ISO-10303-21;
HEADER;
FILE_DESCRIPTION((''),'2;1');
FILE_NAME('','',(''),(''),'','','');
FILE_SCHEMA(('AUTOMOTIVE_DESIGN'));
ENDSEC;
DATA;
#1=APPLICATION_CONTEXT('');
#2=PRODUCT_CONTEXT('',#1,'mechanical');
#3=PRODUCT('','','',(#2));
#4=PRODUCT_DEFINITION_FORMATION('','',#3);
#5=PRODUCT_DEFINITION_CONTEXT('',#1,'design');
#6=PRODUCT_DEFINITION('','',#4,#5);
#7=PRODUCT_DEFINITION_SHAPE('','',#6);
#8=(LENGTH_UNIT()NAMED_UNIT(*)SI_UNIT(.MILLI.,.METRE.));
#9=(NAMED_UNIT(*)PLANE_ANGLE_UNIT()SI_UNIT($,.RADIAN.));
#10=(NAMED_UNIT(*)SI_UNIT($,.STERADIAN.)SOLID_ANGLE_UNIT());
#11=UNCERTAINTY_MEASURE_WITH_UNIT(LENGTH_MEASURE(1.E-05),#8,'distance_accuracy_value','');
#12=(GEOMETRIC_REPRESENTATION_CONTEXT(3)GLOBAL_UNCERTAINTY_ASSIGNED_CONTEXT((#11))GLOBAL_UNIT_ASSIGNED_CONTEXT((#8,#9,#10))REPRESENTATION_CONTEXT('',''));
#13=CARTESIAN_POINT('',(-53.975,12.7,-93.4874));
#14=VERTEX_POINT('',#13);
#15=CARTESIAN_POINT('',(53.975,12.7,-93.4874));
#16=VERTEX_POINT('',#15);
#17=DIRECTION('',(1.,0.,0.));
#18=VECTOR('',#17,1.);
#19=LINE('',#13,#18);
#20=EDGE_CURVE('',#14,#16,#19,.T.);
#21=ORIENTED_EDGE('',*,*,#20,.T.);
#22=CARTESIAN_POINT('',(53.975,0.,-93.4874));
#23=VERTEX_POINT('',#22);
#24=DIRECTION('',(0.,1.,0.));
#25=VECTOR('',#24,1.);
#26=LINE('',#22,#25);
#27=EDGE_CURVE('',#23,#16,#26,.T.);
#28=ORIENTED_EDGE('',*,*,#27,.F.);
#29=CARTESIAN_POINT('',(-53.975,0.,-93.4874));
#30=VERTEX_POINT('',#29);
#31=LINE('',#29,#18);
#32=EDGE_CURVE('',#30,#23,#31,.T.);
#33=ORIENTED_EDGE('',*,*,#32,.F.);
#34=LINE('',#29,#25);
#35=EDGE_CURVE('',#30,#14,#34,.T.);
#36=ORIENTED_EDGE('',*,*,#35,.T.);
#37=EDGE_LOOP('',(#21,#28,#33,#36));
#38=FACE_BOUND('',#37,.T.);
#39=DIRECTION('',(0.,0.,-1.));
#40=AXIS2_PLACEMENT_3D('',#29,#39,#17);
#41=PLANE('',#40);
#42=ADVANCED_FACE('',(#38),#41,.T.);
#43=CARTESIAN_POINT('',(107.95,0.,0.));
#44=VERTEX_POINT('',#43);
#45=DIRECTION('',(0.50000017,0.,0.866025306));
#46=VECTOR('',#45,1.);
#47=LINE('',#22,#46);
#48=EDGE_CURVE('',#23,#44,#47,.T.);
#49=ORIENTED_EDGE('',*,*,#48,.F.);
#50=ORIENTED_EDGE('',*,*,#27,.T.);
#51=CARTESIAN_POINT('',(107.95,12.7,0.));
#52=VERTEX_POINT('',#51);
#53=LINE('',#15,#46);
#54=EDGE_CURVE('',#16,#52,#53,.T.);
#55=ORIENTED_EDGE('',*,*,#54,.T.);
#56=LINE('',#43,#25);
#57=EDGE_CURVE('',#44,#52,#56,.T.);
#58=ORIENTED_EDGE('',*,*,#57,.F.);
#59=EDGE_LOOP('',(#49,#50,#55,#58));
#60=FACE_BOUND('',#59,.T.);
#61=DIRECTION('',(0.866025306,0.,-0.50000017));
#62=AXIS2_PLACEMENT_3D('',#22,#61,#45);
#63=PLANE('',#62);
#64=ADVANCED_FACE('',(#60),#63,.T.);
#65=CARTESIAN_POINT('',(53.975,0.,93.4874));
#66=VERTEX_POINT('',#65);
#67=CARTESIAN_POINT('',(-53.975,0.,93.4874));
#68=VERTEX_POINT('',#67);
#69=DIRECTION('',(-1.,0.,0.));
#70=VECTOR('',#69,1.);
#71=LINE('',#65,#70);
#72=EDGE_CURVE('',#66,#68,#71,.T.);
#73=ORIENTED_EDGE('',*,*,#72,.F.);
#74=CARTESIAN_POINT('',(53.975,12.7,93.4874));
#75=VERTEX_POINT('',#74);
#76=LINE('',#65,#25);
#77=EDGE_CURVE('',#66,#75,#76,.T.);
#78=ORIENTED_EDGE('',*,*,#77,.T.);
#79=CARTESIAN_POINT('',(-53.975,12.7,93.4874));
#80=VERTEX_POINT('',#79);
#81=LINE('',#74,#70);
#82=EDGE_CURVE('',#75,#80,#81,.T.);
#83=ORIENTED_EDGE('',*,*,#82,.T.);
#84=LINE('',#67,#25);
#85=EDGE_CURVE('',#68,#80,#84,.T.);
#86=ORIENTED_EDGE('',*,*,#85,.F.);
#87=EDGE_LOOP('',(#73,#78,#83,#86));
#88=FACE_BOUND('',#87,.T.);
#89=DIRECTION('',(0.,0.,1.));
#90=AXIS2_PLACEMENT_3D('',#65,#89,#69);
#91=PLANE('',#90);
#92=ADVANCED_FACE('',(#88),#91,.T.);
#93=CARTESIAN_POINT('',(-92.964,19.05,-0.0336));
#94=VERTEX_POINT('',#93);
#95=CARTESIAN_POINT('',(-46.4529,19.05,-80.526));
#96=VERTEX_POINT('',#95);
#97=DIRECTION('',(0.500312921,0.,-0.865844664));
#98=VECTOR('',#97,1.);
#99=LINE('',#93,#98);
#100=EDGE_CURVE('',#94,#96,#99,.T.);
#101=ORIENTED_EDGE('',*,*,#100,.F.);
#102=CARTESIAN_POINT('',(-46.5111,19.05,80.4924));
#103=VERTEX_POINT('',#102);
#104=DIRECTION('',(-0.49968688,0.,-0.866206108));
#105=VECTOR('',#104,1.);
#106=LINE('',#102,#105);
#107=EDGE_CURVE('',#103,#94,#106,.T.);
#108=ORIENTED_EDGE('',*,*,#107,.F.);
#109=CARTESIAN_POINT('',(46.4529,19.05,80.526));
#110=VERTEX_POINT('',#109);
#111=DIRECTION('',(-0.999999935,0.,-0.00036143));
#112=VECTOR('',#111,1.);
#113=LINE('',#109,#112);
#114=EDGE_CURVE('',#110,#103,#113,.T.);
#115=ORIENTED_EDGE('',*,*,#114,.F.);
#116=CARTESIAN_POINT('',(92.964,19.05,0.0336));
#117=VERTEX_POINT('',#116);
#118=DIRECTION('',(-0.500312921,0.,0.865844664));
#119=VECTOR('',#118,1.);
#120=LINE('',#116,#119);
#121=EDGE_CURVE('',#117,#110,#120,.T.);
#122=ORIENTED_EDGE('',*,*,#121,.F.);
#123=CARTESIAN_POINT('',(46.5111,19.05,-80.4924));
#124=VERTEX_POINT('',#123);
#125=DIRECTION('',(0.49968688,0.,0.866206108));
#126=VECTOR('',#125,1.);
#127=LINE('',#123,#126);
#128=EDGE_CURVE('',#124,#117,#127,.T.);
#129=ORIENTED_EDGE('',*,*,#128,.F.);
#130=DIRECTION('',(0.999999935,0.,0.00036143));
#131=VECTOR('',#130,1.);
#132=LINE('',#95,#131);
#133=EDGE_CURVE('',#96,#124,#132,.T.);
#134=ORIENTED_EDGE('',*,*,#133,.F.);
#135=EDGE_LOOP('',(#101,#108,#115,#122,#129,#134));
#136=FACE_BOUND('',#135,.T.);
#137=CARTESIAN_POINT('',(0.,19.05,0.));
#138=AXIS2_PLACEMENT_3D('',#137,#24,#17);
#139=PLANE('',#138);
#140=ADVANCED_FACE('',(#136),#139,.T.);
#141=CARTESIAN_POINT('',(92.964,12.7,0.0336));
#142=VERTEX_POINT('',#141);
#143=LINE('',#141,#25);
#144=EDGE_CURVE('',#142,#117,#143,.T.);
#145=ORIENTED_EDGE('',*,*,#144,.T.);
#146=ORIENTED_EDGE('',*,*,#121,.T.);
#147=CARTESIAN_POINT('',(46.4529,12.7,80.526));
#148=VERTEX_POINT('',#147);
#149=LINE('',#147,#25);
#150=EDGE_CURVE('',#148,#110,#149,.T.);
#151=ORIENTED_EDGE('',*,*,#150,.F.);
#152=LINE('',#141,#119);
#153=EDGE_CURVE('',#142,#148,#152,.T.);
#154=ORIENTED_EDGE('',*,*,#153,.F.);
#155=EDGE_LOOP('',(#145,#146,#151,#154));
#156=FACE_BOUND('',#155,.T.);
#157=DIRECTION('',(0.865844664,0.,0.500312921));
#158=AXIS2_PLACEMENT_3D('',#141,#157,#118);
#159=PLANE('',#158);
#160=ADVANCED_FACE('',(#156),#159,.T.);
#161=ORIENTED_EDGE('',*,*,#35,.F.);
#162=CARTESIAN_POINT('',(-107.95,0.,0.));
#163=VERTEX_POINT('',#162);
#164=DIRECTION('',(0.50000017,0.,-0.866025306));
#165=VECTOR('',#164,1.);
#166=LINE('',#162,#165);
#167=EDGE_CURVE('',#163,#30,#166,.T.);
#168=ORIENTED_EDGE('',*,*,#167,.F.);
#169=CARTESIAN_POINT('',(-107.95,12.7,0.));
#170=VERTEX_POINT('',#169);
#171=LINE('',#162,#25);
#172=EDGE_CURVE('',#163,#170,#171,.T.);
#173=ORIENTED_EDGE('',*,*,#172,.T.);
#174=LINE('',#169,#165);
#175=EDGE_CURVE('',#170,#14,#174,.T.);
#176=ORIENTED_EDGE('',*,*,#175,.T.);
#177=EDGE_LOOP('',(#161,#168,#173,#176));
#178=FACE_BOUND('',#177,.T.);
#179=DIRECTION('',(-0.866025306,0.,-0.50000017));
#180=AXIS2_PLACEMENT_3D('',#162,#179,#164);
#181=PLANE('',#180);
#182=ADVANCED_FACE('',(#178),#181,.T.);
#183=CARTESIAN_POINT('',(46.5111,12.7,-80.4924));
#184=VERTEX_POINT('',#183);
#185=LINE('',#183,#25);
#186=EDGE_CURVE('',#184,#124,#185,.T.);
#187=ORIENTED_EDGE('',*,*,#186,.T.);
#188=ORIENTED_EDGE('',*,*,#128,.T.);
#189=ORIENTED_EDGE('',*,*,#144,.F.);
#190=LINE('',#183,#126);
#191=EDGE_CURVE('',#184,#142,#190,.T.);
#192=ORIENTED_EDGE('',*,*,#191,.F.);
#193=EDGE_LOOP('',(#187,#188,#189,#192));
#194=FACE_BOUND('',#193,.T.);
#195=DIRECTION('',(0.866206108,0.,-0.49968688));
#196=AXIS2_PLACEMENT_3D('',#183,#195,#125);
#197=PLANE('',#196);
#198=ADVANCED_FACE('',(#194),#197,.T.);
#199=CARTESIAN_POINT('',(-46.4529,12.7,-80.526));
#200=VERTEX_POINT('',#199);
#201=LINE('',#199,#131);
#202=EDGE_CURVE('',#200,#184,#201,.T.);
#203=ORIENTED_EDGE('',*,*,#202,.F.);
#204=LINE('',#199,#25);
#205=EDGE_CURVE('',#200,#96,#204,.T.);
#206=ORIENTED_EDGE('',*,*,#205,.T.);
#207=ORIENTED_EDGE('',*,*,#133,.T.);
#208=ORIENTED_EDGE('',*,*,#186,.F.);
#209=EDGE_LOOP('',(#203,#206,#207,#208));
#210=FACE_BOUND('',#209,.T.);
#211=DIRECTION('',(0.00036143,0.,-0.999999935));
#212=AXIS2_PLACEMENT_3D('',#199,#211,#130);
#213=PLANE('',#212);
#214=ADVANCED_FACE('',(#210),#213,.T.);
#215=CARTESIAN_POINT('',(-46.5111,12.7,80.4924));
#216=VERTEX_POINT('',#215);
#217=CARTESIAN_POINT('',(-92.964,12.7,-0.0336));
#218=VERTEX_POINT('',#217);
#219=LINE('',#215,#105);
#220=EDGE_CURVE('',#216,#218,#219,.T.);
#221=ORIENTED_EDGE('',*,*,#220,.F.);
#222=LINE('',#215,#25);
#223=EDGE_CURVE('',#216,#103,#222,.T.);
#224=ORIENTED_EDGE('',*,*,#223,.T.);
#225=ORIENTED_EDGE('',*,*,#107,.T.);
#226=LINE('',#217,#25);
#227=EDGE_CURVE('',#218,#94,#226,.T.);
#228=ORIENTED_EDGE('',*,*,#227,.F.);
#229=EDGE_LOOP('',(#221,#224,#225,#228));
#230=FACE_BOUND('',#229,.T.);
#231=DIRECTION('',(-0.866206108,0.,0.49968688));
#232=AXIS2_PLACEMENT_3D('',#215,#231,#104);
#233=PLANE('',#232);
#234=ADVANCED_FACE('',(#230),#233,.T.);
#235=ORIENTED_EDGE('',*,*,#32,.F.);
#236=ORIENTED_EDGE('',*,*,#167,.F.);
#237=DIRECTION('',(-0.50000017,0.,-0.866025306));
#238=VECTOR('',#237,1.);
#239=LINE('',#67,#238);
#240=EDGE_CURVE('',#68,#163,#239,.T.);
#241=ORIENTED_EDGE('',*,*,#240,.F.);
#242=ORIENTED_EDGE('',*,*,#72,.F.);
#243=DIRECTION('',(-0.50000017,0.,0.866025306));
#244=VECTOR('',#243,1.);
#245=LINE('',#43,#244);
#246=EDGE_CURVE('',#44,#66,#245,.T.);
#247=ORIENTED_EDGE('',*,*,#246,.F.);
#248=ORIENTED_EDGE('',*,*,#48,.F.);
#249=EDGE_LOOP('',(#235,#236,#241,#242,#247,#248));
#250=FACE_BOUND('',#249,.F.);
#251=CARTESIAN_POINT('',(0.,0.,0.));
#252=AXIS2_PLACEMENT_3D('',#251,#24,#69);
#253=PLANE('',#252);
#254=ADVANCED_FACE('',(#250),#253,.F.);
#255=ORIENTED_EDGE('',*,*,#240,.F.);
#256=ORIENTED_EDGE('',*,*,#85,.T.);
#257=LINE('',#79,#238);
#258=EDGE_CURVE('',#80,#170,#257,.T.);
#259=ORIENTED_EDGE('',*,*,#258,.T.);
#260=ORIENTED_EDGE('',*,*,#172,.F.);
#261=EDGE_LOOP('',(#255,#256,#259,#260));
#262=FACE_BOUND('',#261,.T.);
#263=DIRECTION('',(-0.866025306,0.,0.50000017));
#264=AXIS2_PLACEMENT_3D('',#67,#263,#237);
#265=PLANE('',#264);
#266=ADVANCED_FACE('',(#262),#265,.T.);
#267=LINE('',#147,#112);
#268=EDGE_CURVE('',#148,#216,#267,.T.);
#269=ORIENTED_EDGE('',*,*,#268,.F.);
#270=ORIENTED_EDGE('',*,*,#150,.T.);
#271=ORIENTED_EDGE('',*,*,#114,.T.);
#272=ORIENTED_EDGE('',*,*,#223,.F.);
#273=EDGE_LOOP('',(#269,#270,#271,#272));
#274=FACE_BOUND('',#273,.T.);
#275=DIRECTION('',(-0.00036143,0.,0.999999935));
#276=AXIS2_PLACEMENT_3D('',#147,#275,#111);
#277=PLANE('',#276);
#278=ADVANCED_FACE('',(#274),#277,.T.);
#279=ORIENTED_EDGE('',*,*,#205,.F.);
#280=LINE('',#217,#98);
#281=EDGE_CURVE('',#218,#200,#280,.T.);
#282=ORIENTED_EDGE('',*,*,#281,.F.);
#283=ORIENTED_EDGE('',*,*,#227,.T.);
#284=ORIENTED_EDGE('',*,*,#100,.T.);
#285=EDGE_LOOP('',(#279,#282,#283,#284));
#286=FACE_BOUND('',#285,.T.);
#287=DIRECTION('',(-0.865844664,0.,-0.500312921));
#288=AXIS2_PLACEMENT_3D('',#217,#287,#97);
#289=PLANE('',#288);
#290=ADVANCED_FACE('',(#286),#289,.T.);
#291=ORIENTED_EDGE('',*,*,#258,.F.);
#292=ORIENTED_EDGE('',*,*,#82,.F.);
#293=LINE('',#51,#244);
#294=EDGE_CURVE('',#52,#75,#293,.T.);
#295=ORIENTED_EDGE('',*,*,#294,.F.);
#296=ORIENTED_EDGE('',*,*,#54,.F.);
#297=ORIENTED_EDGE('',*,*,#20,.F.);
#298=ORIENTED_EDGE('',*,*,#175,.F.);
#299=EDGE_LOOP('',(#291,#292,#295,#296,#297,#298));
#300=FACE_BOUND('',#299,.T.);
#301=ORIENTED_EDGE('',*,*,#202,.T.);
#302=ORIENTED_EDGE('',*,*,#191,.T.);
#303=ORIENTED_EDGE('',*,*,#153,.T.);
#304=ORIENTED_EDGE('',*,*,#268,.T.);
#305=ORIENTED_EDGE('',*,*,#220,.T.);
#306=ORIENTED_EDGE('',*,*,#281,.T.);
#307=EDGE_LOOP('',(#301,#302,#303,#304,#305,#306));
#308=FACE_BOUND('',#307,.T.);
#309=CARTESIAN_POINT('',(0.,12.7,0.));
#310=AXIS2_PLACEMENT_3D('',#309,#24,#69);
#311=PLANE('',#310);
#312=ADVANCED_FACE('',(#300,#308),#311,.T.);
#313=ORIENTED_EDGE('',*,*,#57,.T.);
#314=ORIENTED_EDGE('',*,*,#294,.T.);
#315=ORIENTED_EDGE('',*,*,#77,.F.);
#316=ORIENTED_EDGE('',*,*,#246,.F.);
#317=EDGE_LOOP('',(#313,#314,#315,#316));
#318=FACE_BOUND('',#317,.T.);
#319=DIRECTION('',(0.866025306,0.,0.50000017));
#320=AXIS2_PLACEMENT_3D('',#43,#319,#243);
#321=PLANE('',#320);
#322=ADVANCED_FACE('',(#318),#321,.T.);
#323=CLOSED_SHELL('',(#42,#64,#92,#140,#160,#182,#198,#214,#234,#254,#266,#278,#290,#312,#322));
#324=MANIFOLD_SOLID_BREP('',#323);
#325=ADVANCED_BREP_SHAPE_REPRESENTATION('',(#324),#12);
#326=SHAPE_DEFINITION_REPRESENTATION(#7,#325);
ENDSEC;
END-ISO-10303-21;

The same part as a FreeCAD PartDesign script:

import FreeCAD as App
import Part
import Sketcher
Q = App.Units.Quantity

doc = App.newDocument("Part")
body = doc.addObject("PartDesign::Body", "Body")

# Sketch on XZ plane
sketch1 = body.newObject("Sketcher::SketchObject", "Sketch")
sketch1.AttachmentSupport = (doc.getObject("XZ_Plane"), [""])
sketch1.MapMode = "FlatFace"
sketch1.addGeometry([
    Part.LineSegment(App.Vector(54, 93, 0), App.Vector(108, 0, 0)),  # 0
    Part.LineSegment(App.Vector(108, 0, 0), App.Vector(54, -93, 0)),  # 1
    Part.LineSegment(App.Vector(54, -93, 0), App.Vector(-54, -93, 0)),  # 2
    Part.LineSegment(App.Vector(-54, -93, 0), App.Vector(-108, 0, 0)),  # 3
    Part.LineSegment(App.Vector(-108, 0, 0), App.Vector(-54, 93, 0)),  # 4
    Part.LineSegment(App.Vector(-54, 93, 0), App.Vector(54, 93, 0)),  # 5
], False)
sketch1.addConstraint([
    Sketcher.Constraint("Coincident", 0, 2, 1, 1),
    Sketcher.Constraint("Coincident", 1, 2, 2, 1),
    Sketcher.Constraint("Coincident", 2, 2, 3, 1),
    Sketcher.Constraint("Coincident", 3, 2, 4, 1),
    Sketcher.Constraint("Coincident", 4, 2, 5, 1),
    Sketcher.Constraint("Coincident", 5, 2, 0, 1),
    Sketcher.Constraint("Horizontal", 2),
    Sketcher.Constraint("Horizontal", 5),
    Sketcher.Constraint("Symmetric", 0, 2, 3, 2, -1, 1),
    Sketcher.Constraint("Symmetric", 1, 2, 4, 2, -1, 1),
    Sketcher.Constraint("PointOnObject", 0, 2, -1),
    Sketcher.Constraint("Parallel", 0, 3),
    Sketcher.Constraint("Vertical", 2, 2, 4, 2),
    Sketcher.Constraint("DistanceX", 3, 2, 0, 2, Q("8.5 in")),
    Sketcher.Constraint("Angle", 0, Q("-60 deg")),
    Sketcher.Constraint("DistanceX", 2, 2, 2, 1, Q("4.25 in")),
])
pad1 = body.newObject("PartDesign::Pad", "Pad")
pad1.Profile = sketch1
pad1.Length = Q("0.5 in")
pad1.Reversed = True

# Sketch on XZ plane
sketch2 = body.newObject("Sketcher::SketchObject", "Sketch001")
sketch2.AttachmentSupport = (doc.getObject("XZ_Plane"), [""])
sketch2.MapMode = "FlatFace"
sketch2.AttachmentOffset = App.Placement(App.Vector(0, 0, -0.5 * 25.4), App.Rotation())
sketch2.addGeometry([
    Part.LineSegment(App.Vector(-46, -81, 0), App.Vector(-93, 0, 0)),  # 0
    Part.LineSegment(App.Vector(-93, 0, 0), App.Vector(-47, 80, 0)),  # 1
    Part.LineSegment(App.Vector(-47, 80, 0), App.Vector(46, 81, 0)),  # 2
    Part.LineSegment(App.Vector(46, 81, 0), App.Vector(93, 0, 0)),  # 3
    Part.LineSegment(App.Vector(93, 0, 0), App.Vector(47, -80, 0)),  # 4
    Part.LineSegment(App.Vector(47, -80, 0), App.Vector(-46, -81, 0)),  # 5
], False)
sketch2.addConstraint([
    Sketcher.Constraint("Coincident", 0, 2, 1, 1),
    Sketcher.Constraint("Coincident", 1, 2, 2, 1),
    Sketcher.Constraint("Coincident", 2, 2, 3, 1),
    Sketcher.Constraint("Coincident", 3, 2, 4, 1),
    Sketcher.Constraint("Coincident", 4, 2, 5, 1),
    Sketcher.Constraint("Coincident", 5, 2, 0, 1),
    Sketcher.Constraint("Symmetric", 0, 2, 3, 2, -1, 1),
    Sketcher.Constraint("Symmetric", 1, 2, 4, 2, -1, 1),
    Sketcher.Constraint("Symmetric", 2, 2, 5, 2, -1, 1),
    Sketcher.Constraint("Equal", 0, 1),
    Sketcher.Constraint("Equal", 1, 2),
    Sketcher.Constraint("Distance", 0, Q("3.66 in")),
    Sketcher.Constraint("DistanceX", 0, 2, -1, 1, Q("3.66 in")),
    Sketcher.Constraint("Angle", 0, Q("120.0207 deg")),
    Sketcher.Constraint("Angle", 2, Q("0.0207 deg")),
])
pad2 = body.newObject("PartDesign::Pad", "Pad001")
pad2.Profile = sketch2
pad2.Length = Q("0.25 in")
pad2.Reversed = True

doc.recompute()
